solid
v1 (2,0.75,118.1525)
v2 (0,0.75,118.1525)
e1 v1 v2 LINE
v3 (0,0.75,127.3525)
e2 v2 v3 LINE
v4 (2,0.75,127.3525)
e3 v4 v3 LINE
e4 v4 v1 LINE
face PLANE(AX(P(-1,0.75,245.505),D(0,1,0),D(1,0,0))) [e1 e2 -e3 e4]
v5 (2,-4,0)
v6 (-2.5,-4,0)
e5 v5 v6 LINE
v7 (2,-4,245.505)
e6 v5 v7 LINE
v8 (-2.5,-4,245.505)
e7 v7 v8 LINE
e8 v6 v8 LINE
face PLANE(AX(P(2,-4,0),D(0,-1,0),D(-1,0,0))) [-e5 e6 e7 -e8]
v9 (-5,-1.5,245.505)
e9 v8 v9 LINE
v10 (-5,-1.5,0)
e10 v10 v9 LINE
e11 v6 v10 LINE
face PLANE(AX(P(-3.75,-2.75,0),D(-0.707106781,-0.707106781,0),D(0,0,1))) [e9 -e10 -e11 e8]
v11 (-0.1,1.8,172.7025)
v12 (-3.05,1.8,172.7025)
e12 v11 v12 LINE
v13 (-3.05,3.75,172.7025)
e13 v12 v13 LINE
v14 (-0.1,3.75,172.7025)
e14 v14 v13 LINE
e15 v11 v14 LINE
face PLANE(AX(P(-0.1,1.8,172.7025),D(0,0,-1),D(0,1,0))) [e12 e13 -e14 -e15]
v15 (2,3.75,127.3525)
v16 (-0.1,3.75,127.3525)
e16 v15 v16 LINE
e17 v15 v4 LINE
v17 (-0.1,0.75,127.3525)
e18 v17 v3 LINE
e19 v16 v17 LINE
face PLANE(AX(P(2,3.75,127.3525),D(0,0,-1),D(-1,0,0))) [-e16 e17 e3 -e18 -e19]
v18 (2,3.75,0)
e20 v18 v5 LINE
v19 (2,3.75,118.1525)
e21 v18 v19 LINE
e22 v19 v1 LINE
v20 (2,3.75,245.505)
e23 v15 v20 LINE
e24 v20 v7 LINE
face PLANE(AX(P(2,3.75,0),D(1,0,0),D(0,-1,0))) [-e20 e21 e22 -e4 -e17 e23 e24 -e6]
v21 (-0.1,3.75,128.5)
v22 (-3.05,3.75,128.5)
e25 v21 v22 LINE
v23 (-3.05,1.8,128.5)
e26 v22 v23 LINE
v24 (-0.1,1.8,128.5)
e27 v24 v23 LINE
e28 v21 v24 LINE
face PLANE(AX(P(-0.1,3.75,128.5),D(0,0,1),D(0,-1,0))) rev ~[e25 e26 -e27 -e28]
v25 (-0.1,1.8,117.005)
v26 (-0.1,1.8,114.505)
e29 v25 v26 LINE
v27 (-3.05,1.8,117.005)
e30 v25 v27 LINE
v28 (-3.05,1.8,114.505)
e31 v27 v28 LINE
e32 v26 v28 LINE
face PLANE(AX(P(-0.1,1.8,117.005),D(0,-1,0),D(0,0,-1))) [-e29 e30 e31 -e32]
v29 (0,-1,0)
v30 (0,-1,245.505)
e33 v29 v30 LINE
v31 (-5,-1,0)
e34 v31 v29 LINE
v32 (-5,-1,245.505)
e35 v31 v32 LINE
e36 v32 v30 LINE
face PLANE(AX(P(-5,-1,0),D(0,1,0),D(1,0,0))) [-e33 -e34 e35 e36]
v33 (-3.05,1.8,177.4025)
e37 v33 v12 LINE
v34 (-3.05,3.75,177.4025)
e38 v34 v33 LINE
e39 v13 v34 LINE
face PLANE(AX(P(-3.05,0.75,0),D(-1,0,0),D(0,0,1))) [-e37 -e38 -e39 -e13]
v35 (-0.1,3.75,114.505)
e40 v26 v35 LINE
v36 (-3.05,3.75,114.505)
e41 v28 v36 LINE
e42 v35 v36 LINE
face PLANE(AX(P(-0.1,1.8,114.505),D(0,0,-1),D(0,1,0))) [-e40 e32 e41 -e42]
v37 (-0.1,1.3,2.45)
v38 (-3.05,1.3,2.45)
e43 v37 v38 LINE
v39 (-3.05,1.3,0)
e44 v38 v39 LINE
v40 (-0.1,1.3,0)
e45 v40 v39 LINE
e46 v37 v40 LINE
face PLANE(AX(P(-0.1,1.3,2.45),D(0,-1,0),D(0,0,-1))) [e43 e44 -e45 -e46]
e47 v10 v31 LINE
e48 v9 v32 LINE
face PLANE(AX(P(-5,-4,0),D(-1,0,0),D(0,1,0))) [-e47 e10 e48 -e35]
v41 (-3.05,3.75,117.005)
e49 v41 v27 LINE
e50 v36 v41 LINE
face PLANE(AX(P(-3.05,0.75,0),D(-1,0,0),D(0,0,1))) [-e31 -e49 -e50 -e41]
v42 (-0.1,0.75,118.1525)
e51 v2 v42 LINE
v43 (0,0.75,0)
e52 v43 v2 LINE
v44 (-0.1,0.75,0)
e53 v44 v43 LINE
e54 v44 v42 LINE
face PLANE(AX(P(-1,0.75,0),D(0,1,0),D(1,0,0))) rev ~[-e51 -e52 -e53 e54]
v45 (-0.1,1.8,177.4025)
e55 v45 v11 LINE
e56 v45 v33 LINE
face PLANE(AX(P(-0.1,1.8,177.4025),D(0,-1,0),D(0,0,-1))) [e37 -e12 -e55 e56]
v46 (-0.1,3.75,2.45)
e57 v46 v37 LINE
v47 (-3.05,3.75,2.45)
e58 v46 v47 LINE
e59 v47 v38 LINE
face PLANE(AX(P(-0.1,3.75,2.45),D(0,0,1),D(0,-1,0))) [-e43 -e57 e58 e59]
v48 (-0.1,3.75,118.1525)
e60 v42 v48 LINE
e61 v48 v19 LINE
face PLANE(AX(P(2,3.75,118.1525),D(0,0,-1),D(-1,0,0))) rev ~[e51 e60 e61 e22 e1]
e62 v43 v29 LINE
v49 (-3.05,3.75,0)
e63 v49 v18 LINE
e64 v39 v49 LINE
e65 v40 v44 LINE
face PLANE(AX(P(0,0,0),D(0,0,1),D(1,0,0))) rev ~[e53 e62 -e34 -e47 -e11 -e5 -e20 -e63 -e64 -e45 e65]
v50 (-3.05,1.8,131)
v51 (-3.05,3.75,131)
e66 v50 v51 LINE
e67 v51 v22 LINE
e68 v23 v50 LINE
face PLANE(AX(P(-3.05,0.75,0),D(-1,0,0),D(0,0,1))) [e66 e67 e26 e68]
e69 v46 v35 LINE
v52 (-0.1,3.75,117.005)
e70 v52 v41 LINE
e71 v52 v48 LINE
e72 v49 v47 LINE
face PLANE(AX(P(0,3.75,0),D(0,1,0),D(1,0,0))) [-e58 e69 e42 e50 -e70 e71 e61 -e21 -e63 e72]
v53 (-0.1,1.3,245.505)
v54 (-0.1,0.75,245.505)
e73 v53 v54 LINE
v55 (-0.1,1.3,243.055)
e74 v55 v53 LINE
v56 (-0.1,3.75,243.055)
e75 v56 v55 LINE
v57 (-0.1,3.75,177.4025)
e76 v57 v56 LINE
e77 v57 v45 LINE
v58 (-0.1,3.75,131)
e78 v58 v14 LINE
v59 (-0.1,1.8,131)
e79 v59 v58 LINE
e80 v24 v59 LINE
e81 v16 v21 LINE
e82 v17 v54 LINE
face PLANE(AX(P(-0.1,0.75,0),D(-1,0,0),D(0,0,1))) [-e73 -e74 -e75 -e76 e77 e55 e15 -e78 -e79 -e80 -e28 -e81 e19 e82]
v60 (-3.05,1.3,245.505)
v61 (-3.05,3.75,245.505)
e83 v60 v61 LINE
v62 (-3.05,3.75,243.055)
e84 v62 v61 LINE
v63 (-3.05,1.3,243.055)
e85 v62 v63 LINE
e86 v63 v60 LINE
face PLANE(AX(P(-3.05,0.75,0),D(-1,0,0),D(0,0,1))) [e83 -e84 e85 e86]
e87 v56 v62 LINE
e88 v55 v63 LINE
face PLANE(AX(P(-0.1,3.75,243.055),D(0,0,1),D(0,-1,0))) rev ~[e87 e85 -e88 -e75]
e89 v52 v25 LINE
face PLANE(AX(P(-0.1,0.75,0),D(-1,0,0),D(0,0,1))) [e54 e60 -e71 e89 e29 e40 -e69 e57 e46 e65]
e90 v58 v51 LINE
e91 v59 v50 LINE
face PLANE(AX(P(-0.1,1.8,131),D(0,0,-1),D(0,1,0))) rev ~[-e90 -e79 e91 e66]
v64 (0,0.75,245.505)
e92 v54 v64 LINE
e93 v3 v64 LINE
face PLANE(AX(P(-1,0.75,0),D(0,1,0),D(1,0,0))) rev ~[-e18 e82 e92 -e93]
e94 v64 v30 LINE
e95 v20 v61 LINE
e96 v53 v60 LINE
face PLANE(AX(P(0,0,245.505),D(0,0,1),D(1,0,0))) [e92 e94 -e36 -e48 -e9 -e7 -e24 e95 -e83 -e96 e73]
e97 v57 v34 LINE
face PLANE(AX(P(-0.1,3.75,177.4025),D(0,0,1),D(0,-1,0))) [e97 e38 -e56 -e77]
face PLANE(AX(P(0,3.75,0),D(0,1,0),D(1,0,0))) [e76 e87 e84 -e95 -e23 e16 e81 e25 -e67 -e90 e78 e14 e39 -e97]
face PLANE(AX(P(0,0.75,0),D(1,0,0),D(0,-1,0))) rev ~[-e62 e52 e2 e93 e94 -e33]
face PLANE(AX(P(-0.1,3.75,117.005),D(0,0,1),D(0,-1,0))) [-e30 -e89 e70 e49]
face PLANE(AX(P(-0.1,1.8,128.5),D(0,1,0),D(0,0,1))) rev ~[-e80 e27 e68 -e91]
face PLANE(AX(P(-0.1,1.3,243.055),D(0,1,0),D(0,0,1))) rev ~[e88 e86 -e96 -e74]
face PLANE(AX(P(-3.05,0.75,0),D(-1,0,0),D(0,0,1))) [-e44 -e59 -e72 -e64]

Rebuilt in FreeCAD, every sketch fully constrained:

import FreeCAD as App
import Part
import Sketcher


def edges_at(feature, points):
    """Names of the edges that pass closest to the given points."""
    edges = feature.Shape.Edges
    near = lambda p: min(range(len(edges)), key=lambda i: edges[i].distToShape(Part.Vertex(*p))[0])
    return sorted({f"Edge{near(p) + 1}" for p in points})


def add_polygon(sketch, points):
    """Adds a closed chain of lines whose ends are joined by coincident constraints."""
    first, n = sketch.GeometryCount, len(points)
    for a, b in zip(points, points[1:] + points[:1]):
        sketch.addGeometry(Part.LineSegment(App.Vector(*a, 0), App.Vector(*b, 0)), False)
    for i in range(n):
        sketch.addConstraint(Sketcher.Constraint("Coincident", first + i, 2, first + (i + 1) % n, 1))

doc = App.newDocument("Part")
body = doc.addObject("PartDesign::Body", "Body")

sketch1 = doc.addObject("Sketcher::SketchObject", "Sketch")
body.addObject(sketch1)
sketch1.AttachmentSupport = (doc.XY_Plane, [""])
sketch1.MapMode = "FlatFace"
add_polygon(sketch1, [(2, 3.8), (-1, 3.8), (-1, 0.8), (0, 0.8), (0, -1), (-5, -1), (-5, -4), (2, -4)])
sketch1.addConstraint([
    Sketcher.Constraint("Horizontal", 0),
    Sketcher.Constraint("Vertical", 1),
    Sketcher.Constraint("Horizontal", 2),
    Sketcher.Constraint("Vertical", 3),
    Sketcher.Constraint("Horizontal", 4),
    Sketcher.Constraint("Vertical", 5),
    Sketcher.Constraint("Horizontal", 6),
    Sketcher.Constraint("Vertical", 7),
    Sketcher.Constraint("PointOnObject", 2, 2, -2),
    Sketcher.Constraint("Equal", 0, 1),
    Sketcher.Constraint("Equal", 1, 5),
    Sketcher.Constraint("DistanceX", 0, 2, 0, 1, 3.0),
    Sketcher.Constraint("DistanceX", 4, 2, 4, 1, 5.0),
    Sketcher.Constraint("DistanceY", 5, 2, -1, 1, 4.0),
    Sketcher.Constraint("DistanceX", -1, 1, 6, 2, 2.0),
    Sketcher.Constraint("DistanceY", 3, 2, 3, 1, 1.75),
])
pad1 = doc.addObject("PartDesign::Pad", "Pad")
body.addObject(pad1)
pad1.Profile = sketch1
pad1.Length = 245.505

sketch2 = doc.addObject("Sketcher::SketchObject", "Sketch001")
body.addObject(sketch2)
sketch2.AttachmentSupport = (doc.XZ_Plane, [""])
sketch2.MapMode = "FlatFace"
sketch2.AttachmentOffset = App.Placement(App.Vector(0, 0, -3.75), App.Rotation())
add_polygon(sketch2, [(2, 127.4), (2, 118.2), (-1, 118.2), (-1, 127.4)])
sketch2.addConstraint([
    Sketcher.Constraint("Vertical", 0),
    Sketcher.Constraint("Horizontal", 1),
    Sketcher.Constraint("Vertical", 2),
    Sketcher.Constraint("Horizontal", 3),
    Sketcher.Constraint("DistanceY", 0, 2, 0, 1, 9.2),
    Sketcher.Constraint("DistanceX", 1, 2, 1, 1, 3.0),
    Sketcher.Constraint("DistanceX", -1, 1, 0, 2, 2.0),
    Sketcher.Constraint("DistanceY", -1, 1, 0, 2, 118.1525),
])
pocket1 = doc.addObject("PartDesign::Pocket", "Pocket")
body.addObject(pocket1)
pocket1.Profile = sketch2
pocket1.Length = 3
pocket1.Reversed = True

sketch3 = doc.addObject("Sketcher::SketchObject", "Sketch002")
body.addObject(sketch3)
sketch3.AttachmentSupport = (doc.YZ_Plane, [""])
sketch3.MapMode = "FlatFace"
sketch3.AttachmentOffset = App.Placement(App.Vector(0, 0, -1), App.Rotation())
add_polygon(sketch3, [(0.8, 0), (0.8, 118.2), (3.8, 118.2), (3.8, 0)])
add_polygon(sketch3, [(3.8, 245.5), (3.8, 127.4), (0.8, 127.4), (0.8, 245.5)])
sketch3.addConstraint([
    Sketcher.Constraint("Vertical", 0),
    Sketcher.Constraint("Horizontal", 1),
    Sketcher.Constraint("Vertical", 2),
    Sketcher.Constraint("Horizontal", 3),
    Sketcher.Constraint("Vertical", 4),
    Sketcher.Constraint("Horizontal", 5),
    Sketcher.Constraint("Vertical", 6),
    Sketcher.Constraint("Horizontal", 7),
    Sketcher.Constraint("PointOnObject", 2, 2, -1),
    Sketcher.Constraint("Vertical", 2, 2, 4, 2),
    Sketcher.Constraint("Vertical", 3, 2, 5, 2),
    Sketcher.Constraint("Equal", 2, 4),
    Sketcher.Constraint("DistanceX", 1, 1, 1, 2, 3.0),
    Sketcher.Constraint("DistanceY", 1, 2, 4, 2, 9.2),
    Sketcher.Constraint("DistanceX", -1, 1, 0, 2, 0.75),
    Sketcher.Constraint("DistanceY", 0, 1, 0, 2, 118.1525),
])
pocket2 = doc.addObject("PartDesign::Pocket", "Pocket001")
body.addObject(pocket2)
pocket2.Profile = sketch3
pocket2.Length = 0.9
pocket2.Reversed = True
doc.recompute()

chamfer = doc.addObject("PartDesign::Chamfer", "Chamfer")
body.addObject(chamfer)
chamfer.Base = (pocket2, edges_at(pocket2, [(-5, -4, 122.752)]))
chamfer.Size = 2.5

sketch4 = doc.addObject("Sketcher::SketchObject", "Sketch003")
body.addObject(sketch4)
sketch4.AttachmentSupport = (doc.YZ_Plane, [""])
sketch4.MapMode = "FlatFace"
sketch4.AttachmentOffset = App.Placement(App.Vector(0, 0, -0.1), App.Rotation())
add_polygon(sketch4, [(3.8, 2.5), (3.8, 0), (1.3, 0), (1.3, 2.5)])
add_polygon(sketch4, [(3.8, 245.5), (3.8, 243.1), (1.3, 243.1), (1.3, 245.5)])
sketch4.addConstraint([
    Sketcher.Constraint("Vertical", 0),
    Sketcher.Constraint("Horizontal", 1),
    Sketcher.Constraint("Vertical", 2),
    Sketcher.Constraint("Horizontal", 3),
    Sketcher.Constraint("Vertical", 4),
    Sketcher.Constraint("Horizontal", 5),
    Sketcher.Constraint("Vertical", 6),
    Sketcher.Constraint("Horizontal", 7),
    Sketcher.Constraint("PointOnObject", 0, 2, -1),
    Sketcher.Constraint("Vertical", 3, 2, 4, 2),
    Sketcher.Constraint("Vertical", 2, 2, 5, 2),
    Sketcher.Constraint("Equal", 7, 0),
    Sketcher.Constraint("Equal", 2, 4),
    Sketcher.Constraint("DistanceX", 1, 2, 1, 1, 2.45),
    Sketcher.Constraint("DistanceX", -1, 1, 1, 2, 1.3),
    Sketcher.Constraint("DistanceY", -1, 1, 4, 2, 243.055),
])
pad2 = doc.addObject("PartDesign::Pad", "Pad001")
body.addObject(pad2)
pad2.Profile = sketch4
pad2.Length = 2.95
pad2.Reversed = True

sketch5 = doc.addObject("Sketcher::SketchObject", "Sketch004")
body.addObject(sketch5)
sketch5.AttachmentSupport = (doc.YZ_Plane, [""])
sketch5.MapMode = "FlatFace"
sketch5.AttachmentOffset = App.Placement(App.Vector(0, 0, -0.1), App.Rotation())
add_polygon(sketch5, [(3.8, 117), (3.8, 114.5), (1.8, 114.5), (1.8, 117)])
add_polygon(sketch5, [(1.8, 131), (3.8, 131), (3.8, 128.5), (1.8, 128.5)])
sketch5.addConstraint([
    Sketcher.Constraint("Vertical", 0),
    Sketcher.Constraint("Horizontal", 1),
    Sketcher.Constraint("Vertical", 2),
    Sketcher.Constraint("Horizontal", 3),
    Sketcher.Constraint("Horizontal", 4),
    Sketcher.Constraint("Vertical", 5),
    Sketcher.Constraint("Horizontal", 6),
    Sketcher.Constraint("Vertical", 7),
    Sketcher.Constraint("Vertical", 3, 2, 4, 2),
    Sketcher.Constraint("Vertical", 2, 2, 6, 2),
    Sketcher.Constraint("Equal", 2, 5),
    Sketcher.Constraint("DistanceY", 0, 2, 0, 1, 2.5),
    Sketcher.Constraint("DistanceX", 1, 2, 1, 1, 1.95),
    Sketcher.Constraint("DistanceY", -1, 1, 4, 2, 131.0),
    Sketcher.Constraint("DistanceX", -1, 1, 1, 2, 1.8),
    Sketcher.Constraint("DistanceY", -1, 1, 0, 2, 114.505),
])
pad3 = doc.addObject("PartDesign::Pad", "Pad002")
body.addObject(pad3)
pad3.Profile = sketch5
pad3.Length = 2.95
pad3.Reversed = True

sketch6 = doc.addObject("Sketcher::SketchObject", "Sketch005")
body.addObject(sketch6)
sketch6.AttachmentSupport = (doc.YZ_Plane, [""])
sketch6.MapMode = "FlatFace"
sketch6.AttachmentOffset = App.Placement(App.Vector(0, 0, -0.1), App.Rotation())
add_polygon(sketch6, [(3.8, 177.4), (3.8, 172.7), (1.8, 172.7), (1.8, 177.4)])
sketch6.addConstraint([
    Sketcher.Constraint("Vertical", 0),
    Sketcher.Constraint("Horizontal", 1),
    Sketcher.Constraint("Vertical", 2),
    Sketcher.Constraint("Horizontal", 3),
    Sketcher.Constraint("DistanceX", 1, 2, 1, 1, 1.95),
    Sketcher.Constraint("DistanceY", 0, 2, 0, 1, 4.7),
    Sketcher.Constraint("DistanceX", -1, 1, 1, 2, 1.8),
    Sketcher.Constraint("DistanceY", -1, 1, 0, 2, 172.7025),
])
pad4 = doc.addObject("PartDesign::Pad", "Pad003")
body.addObject(pad4)
pad4.Profile = sketch6
pad4.Length = 2.95
pad4.Reversed = True

doc.recompute()
